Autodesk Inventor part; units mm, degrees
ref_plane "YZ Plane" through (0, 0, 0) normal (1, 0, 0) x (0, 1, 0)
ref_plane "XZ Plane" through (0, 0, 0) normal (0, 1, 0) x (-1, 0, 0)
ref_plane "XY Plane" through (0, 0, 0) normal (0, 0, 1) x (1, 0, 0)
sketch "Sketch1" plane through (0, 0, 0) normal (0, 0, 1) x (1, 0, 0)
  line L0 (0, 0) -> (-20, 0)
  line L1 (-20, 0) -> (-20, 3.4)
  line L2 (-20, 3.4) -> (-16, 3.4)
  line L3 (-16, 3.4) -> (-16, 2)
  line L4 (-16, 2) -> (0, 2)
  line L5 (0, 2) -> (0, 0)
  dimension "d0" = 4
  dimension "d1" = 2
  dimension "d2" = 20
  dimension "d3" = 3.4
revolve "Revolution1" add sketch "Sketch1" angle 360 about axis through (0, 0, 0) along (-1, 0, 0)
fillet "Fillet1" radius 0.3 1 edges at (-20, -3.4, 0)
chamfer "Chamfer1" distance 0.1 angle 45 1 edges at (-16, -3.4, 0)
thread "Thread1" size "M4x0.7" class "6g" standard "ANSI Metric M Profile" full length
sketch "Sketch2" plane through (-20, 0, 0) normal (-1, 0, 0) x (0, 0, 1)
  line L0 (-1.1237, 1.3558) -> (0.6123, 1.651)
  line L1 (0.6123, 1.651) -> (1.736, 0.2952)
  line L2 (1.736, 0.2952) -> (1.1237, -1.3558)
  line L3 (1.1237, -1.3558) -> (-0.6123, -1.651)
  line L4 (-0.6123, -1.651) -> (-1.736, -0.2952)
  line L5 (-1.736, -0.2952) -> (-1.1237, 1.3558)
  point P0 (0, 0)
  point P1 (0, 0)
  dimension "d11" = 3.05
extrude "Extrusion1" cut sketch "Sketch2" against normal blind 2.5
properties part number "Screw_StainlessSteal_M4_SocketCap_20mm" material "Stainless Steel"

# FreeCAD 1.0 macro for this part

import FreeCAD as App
import Part
import Sketcher

V = App.Vector
Q = App.Units.Quantity


def edges_at(feature, points):
    """Names of the edges that pass closest to the given points."""
    edges = feature.Shape.Edges
    near = lambda p: min(range(len(edges)), key=lambda i: edges[i].distToShape(Part.Vertex(*p))[0])
    return sorted({f"Edge{near(p) + 1}" for p in points})


def add_polygon(sketch, points):
    """Adds a closed chain of lines whose ends are joined by coincident constraints."""
    first, n = sketch.GeometryCount, len(points)
    for a, b in zip(points, points[1:] + points[:1]):
        sketch.addGeometry(Part.LineSegment(App.Vector(*a, 0), App.Vector(*b, 0)), False)
    for i in range(n):
        sketch.addConstraint(Sketcher.Constraint("Coincident", first + i, 2, first + (i + 1) % n, 1))

doc = App.newDocument("Part")
body = doc.addObject("PartDesign::Body", "Body")

# Sketch on XY plane
sketch1 = body.newObject("Sketcher::SketchObject", "Sketch")
sketch1.AttachmentSupport = (doc.getObject("XY_Plane"), [""])
sketch1.MapMode = "FlatFace"
add_polygon(sketch1, [(-20, 0), (0, 0), (0, 2), (-16, 2), (-16, 3.4), (-20, 3.4)])  # lines 0-5
sketch1.addConstraint(Sketcher.Constraint("Horizontal", 0))
sketch1.addConstraint(Sketcher.Constraint("Vertical", 1))
sketch1.addConstraint(Sketcher.Constraint("Horizontal", 2))
sketch1.addConstraint(Sketcher.Constraint("Vertical", 3))
sketch1.addConstraint(Sketcher.Constraint("Horizontal", 4))
sketch1.addConstraint(Sketcher.Constraint("Vertical", 5))
sketch1.addConstraint(Sketcher.Constraint("Coincident", 0, 2, -1, 1))
sketch1.addConstraint(Sketcher.Constraint("DistanceX", 0, 1, 0, 2, Q("20 mm")))
sketch1.addConstraint(Sketcher.Constraint("DistanceX", 4, 2, 4, 1, Q("4 mm")))
sketch1.addConstraint(Sketcher.Constraint("DistanceY", 1, 1, 1, 2, Q("2 mm")))
sketch1.addConstraint(Sketcher.Constraint("DistanceY", 5, 2, 5, 1, Q("3.4 mm")))
revolution = body.newObject("PartDesign::Revolution", "Revolution")
revolution.Profile = sketch1
revolution.ReferenceAxis = (sketch1, ["H_Axis"])
revolution.Angle = 360
doc.recompute()

fillet = body.newObject("PartDesign::Fillet", "Fillet")
fillet.Base = (revolution, edges_at(revolution, [(-20, -3.4, 0)]))
fillet.Radius = 0.3
doc.recompute()

chamfer = body.newObject("PartDesign::Chamfer", "Chamfer")
chamfer.Base = (fillet, edges_at(fillet, [(-16, -3.4, 0)]))
chamfer.Size = 0.1

# Sketch on YZ plane
sketch2 = body.newObject("Sketcher::SketchObject", "Sketch001")
sketch2.AttachmentSupport = (doc.getObject("YZ_Plane"), [""])
sketch2.MapMode = "FlatFace"
sketch2.AttachmentOffset = App.Placement(V(0, 0, -20), App.Rotation())
add_polygon(sketch2, [(1.7, 0.6), (1.4, -1.1), (-0.3, -1.7), (-1.7, -0.6), (-1.4, 1.1), (0.3, 1.7)])  # lines 0-5
sketch2.addConstraint(Sketcher.Constraint("Symmetric", 0, 2, 3, 2, -1, 1))
sketch2.addConstraint(Sketcher.Constraint("Symmetric", 1, 2, 4, 2, -1, 1))
sketch2.addConstraint(Sketcher.Constraint("Symmetric", 2, 2, 5, 2, -1, 1))
sketch2.addConstraint(Sketcher.Constraint("Equal", 0, 1))
sketch2.addConstraint(Sketcher.Constraint("Equal", 1, 2))
sketch2.addConstraint(Sketcher.Constraint("Angle", 0, Q("-99.6506 deg")))
sketch2.addConstraint(Sketcher.Constraint("Distance", 0, Q("1.761 mm")))
sketch2.addConstraint(Sketcher.Constraint("DistanceY", 1, 2, -1, 1, Q("1.736 mm")))
sketch2.addConstraint(Sketcher.Constraint("DistanceX", 2, 2, -1, 1, Q("1.651 mm")))
pocket1 = body.newObject("PartDesign::Pocket", "Pocket")
pocket1.Profile = sketch2
pocket1.Length = 2.5
pocket1.Reversed = True

doc.recompute()
